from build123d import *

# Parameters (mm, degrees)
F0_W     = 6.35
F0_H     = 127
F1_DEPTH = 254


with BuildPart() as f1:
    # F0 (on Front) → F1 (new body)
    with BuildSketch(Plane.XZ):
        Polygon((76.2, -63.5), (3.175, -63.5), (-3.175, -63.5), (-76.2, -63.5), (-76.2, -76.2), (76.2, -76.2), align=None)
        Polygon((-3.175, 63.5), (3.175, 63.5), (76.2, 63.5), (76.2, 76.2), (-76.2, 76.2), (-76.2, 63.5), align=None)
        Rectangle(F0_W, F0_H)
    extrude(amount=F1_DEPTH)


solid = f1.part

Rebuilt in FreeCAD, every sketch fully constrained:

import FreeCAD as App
import Part
import Sketcher

V = App.Vector
Q = App.Units.Quantity

doc = App.newDocument("Part")
body = doc.addObject("PartDesign::Body", "Body")

# Sketch on XZ plane
sketch1 = body.newObject("Sketcher::SketchObject", "Sketch")
sketch1.AttachmentSupport = (doc.getObject("XZ_Plane"), [""])
sketch1.MapMode = "FlatFace"
sketch1.addGeometry([
    Part.LineSegment(V(76, -64, 0), V(3, -64, 0)),  # 0
    Part.LineSegment(V(3, -64, 0), V(3, 64, 0)),  # 1
    Part.LineSegment(V(3, 64, 0), V(76, 64, 0)),  # 2
    Part.LineSegment(V(76, 64, 0), V(76, 76, 0)),  # 3
    Part.LineSegment(V(76, 76, 0), V(-76, 76, 0)),  # 4
    Part.LineSegment(V(-76, 76, 0), V(-76, 64, 0)),  # 5
    Part.LineSegment(V(-76, 64, 0), V(-3, 64, 0)),  # 6
    Part.LineSegment(V(-3, 64, 0), V(-3, -64, 0)),  # 7
    Part.LineSegment(V(-3, -64, 0), V(-76, -64, 0)),  # 8
    Part.LineSegment(V(-76, -64, 0), V(-76, -76, 0)),  # 9
    Part.LineSegment(V(-76, -76, 0), V(76, -76, 0)),  # 10
    Part.LineSegment(V(76, -76, 0), V(76, -64, 0)),  # 11
], False)
sketch1.addConstraint([
    Sketcher.Constraint("Coincident", 0, 2, 1, 1),
    Sketcher.Constraint("Coincident", 1, 2, 2, 1),
    Sketcher.Constraint("Coincident", 2, 2, 3, 1),
    Sketcher.Constraint("Coincident", 3, 2, 4, 1),
    Sketcher.Constraint("Coincident", 4, 2, 5, 1),
    Sketcher.Constraint("Coincident", 5, 2, 6, 1),
    Sketcher.Constraint("Coincident", 6, 2, 7, 1),
    Sketcher.Constraint("Coincident", 7, 2, 8, 1),
    Sketcher.Constraint("Coincident", 8, 2, 9, 1),
    Sketcher.Constraint("Coincident", 9, 2, 10, 1),
    Sketcher.Constraint("Coincident", 10, 2, 11, 1),
    Sketcher.Constraint("Coincident", 11, 2, 0, 1),
    Sketcher.Constraint("Horizontal", 0),
    Sketcher.Constraint("Vertical", 1),
    Sketcher.Constraint("Horizontal", 2),
    Sketcher.Constraint("Vertical", 3),
    Sketcher.Constraint("Horizontal", 4),
    Sketcher.Constraint("Vertical", 5),
    Sketcher.Constraint("Horizontal", 6),
    Sketcher.Constraint("Vertical", 7),
    Sketcher.Constraint("Horizontal", 8),
    Sketcher.Constraint("Vertical", 9),
    Sketcher.Constraint("Horizontal", 10),
    Sketcher.Constraint("Vertical", 11),
    Sketcher.Constraint("Symmetric", 0, 2, 6, 2, -1, 1),
    Sketcher.Constraint("Symmetric", 2, 2, 8, 2, -1, 1),
    Sketcher.Constraint("Symmetric", 4, 2, 10, 2, -1, 1),
    Sketcher.Constraint("Symmetric", 2, 2, 5, 2, -2),
    Sketcher.Constraint("DistanceX", 4, 2, 4, 1, Q("6 in")),
    Sketcher.Constraint("DistanceY", 1, 1, 1, 2, Q("5 in")),
    Sketcher.Constraint("DistanceY", 3, 1, 3, 2, Q("0.5 in")),
    Sketcher.Constraint("DistanceX", 0, 2, 0, 1, Q("2.875 in")),
])
pad1 = body.newObject("PartDesign::Pad", "Pad")
pad1.Profile = sketch1
pad1.Length = Q("10 in")

doc.recompute()
